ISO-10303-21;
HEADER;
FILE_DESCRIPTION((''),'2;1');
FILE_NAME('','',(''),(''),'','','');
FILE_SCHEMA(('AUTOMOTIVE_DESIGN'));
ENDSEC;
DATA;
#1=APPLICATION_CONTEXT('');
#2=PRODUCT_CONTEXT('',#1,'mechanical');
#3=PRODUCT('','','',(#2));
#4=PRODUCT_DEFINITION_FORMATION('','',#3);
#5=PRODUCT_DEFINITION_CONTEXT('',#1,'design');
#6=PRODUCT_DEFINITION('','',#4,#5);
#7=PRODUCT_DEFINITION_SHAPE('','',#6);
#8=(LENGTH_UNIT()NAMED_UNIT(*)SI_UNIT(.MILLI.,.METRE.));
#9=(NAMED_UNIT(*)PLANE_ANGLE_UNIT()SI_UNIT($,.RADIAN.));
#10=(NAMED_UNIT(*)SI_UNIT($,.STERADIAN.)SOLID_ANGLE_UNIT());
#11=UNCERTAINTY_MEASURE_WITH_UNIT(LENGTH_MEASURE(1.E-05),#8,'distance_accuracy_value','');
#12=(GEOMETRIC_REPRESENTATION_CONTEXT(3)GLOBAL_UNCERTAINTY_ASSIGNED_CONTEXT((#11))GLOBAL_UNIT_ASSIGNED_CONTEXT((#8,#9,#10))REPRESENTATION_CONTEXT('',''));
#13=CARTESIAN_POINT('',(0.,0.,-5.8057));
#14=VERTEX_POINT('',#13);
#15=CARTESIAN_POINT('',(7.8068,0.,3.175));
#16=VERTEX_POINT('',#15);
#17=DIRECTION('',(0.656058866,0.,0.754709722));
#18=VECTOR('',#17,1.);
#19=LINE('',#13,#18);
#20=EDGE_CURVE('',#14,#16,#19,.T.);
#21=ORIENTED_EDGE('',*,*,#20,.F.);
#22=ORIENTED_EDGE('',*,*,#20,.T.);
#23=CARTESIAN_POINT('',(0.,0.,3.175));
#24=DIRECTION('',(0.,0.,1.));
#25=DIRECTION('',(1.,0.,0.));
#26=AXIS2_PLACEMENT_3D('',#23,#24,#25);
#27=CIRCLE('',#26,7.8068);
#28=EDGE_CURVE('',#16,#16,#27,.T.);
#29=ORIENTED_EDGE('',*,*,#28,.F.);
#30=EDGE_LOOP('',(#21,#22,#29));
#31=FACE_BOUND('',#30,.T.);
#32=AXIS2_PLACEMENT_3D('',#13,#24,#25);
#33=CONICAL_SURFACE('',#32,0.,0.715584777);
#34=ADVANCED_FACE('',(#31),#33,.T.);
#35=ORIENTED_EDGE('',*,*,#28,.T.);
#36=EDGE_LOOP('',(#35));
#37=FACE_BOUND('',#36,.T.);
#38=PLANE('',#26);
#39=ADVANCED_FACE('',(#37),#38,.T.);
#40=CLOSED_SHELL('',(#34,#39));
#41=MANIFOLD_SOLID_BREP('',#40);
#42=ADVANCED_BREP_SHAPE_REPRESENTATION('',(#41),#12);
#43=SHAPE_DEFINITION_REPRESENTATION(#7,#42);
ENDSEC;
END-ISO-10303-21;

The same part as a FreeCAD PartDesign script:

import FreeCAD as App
import Part
import Sketcher

V = App.Vector
Q = App.Units.Quantity


def add_polygon(sketch, points):
    """Adds a closed chain of lines whose ends are joined by coincident constraints."""
    first, n = sketch.GeometryCount, len(points)
    for a, b in zip(points, points[1:] + points[:1]):
        sketch.addGeometry(Part.LineSegment(App.Vector(*a, 0), App.Vector(*b, 0)), False)
    for i in range(n):
        sketch.addConstraint(Sketcher.Constraint("Coincident", first + i, 2, first + (i + 1) % n, 1))

doc = App.newDocument("Part")
body = doc.addObject("PartDesign::Body", "Body")

sketch1 = doc.addObject("Sketcher::SketchObject", "Sketch")
body.addObject(sketch1)
sketch1.AttachmentSupport = (doc.XZ_Plane, [""])
sketch1.MapMode = "FlatFace"
add_polygon(sketch1, [(8, 3), (0, -6), (0, 3)])
sketch1.addConstraint([
    Sketcher.Constraint("Vertical", 1),
    Sketcher.Constraint("Horizontal", 2),
    Sketcher.Constraint("PointOnObject", 0, 2, -2),
    Sketcher.Constraint("Angle", 0, Q("-131 deg")),
    Sketcher.Constraint("DistanceY", -1, 1, 1, 2, Q("3.175 mm")),
    Sketcher.Constraint("DistanceX", 2, 1, 2, 2, Q("7.8068 mm")),
])
revolution = doc.addObject("PartDesign::Revolution", "Revolution")
body.addObject(revolution)
revolution.Profile = sketch1
revolution.ReferenceAxis = (sketch1, ["V_Axis"])
revolution.Angle = 360

doc.recompute()
